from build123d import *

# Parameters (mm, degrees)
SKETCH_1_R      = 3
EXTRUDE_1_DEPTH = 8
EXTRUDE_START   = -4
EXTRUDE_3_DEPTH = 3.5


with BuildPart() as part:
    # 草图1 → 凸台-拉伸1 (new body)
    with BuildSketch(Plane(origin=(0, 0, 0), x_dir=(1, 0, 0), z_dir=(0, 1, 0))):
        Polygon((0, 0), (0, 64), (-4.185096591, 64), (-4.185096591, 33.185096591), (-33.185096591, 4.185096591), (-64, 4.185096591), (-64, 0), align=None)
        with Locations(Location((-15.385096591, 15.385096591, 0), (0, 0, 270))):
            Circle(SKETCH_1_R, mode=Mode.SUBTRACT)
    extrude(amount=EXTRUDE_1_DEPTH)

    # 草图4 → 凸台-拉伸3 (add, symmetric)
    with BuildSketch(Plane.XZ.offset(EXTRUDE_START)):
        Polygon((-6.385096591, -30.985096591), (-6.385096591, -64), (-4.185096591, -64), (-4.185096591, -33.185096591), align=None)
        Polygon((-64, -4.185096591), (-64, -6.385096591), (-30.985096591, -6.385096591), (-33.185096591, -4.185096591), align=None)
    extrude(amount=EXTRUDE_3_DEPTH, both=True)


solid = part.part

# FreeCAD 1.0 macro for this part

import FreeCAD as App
import Part
import Sketcher
Q = App.Units.Quantity


def add_polygon(sketch, points):
    """Adds a closed chain of lines whose ends are joined by coincident constraints."""
    first, n = sketch.GeometryCount, len(points)
    for a, b in zip(points, points[1:] + points[:1]):
        sketch.addGeometry(Part.LineSegment(App.Vector(*a, 0), App.Vector(*b, 0)), False)
    for i in range(n):
        sketch.addConstraint(Sketcher.Constraint("Coincident", first + i, 2, first + (i + 1) % n, 1))

doc = App.newDocument("Part")
body = doc.addObject("PartDesign::Body", "Body")

# Sketch on XZ plane
sketch1 = body.newObject("Sketcher::SketchObject", "Sketch")
sketch1.AttachmentSupport = (doc.getObject("XZ_Plane"), [""])
sketch1.MapMode = "FlatFace"
add_polygon(sketch1, [(0, 0), (0, -64), (-4.2, -64), (-4.2, -33.2), (-33.2, -4.2), (-64, -4.2), (-64, 0)])  # lines 0-6
sketch1.addGeometry(Part.Circle(App.Vector(-15.4, -15.4, 0), App.Vector(0, 0, 1), 3), False)  # 7
sketch1.addConstraint([
    Sketcher.Constraint("Vertical", 0),
    Sketcher.Constraint("Horizontal", 1),
    Sketcher.Constraint("Vertical", 2),
    Sketcher.Constraint("Horizontal", 4),
    Sketcher.Constraint("Vertical", 5),
    Sketcher.Constraint("Horizontal", 6),
    Sketcher.Constraint("Coincident", 6, 2, -1, 1),
    Sketcher.Constraint("Equal", 6, 0),
    Sketcher.Constraint("Equal", 4, 2),
    Sketcher.Constraint("Equal", 1, 5),
    Sketcher.Constraint("Diameter", 7, Q("6 mm")),
    Sketcher.Constraint("DistanceX", 6, 1, 6, 2, Q("64 mm")),
    Sketcher.Constraint("DistanceX", 3, 2, 2, 2, Q("29 mm")),
    Sketcher.Constraint("DistanceX", 7, 3, 1, 2, Q("11.2 mm")),
    Sketcher.Constraint("DistanceY", 2, 2, 7, 3, Q("17.8 mm")),
    Sketcher.Constraint("DistanceX", 1, 2, 1, 1, Q("4.185097 mm")),
])
pad1 = body.newObject("PartDesign::Pad", "Pad")
pad1.Profile = sketch1
pad1.Length = 8
pad1.Reversed = True

# Sketch on XZ plane
sketch2 = body.newObject("Sketcher::SketchObject", "Sketch001")
sketch2.AttachmentSupport = (doc.getObject("XZ_Plane"), [""])
sketch2.MapMode = "FlatFace"
sketch2.AttachmentOffset = App.Placement(App.Vector(0, 0, -4), App.Rotation())
add_polygon(sketch2, [(-6.4, -31), (-6.4, -64), (-4.2, -64), (-4.2, -33.2)])  # lines 0-3
add_polygon(sketch2, [(-64, -4.2), (-64, -6.4), (-31, -6.4), (-33.2, -4.2)])  # lines 4-7
sketch2.addConstraint([
    Sketcher.Constraint("Vertical", 0),
    Sketcher.Constraint("Horizontal", 1),
    Sketcher.Constraint("Vertical", 2),
    Sketcher.Constraint("Vertical", 4),
    Sketcher.Constraint("Horizontal", 5),
    Sketcher.Constraint("Horizontal", 7),
    Sketcher.Constraint("Parallel", 3, 6),
    Sketcher.Constraint("Equal", 5, 0),
    Sketcher.Constraint("Equal", 7, 2),
    Sketcher.Constraint("Equal", 1, 4),
    Sketcher.Constraint("DistanceX", 1, 1, 1, 2, Q("2.2 mm")),
    Sketcher.Constraint("DistanceY", 0, 2, -1, 1, Q("64 mm")),
    Sketcher.Constraint("DistanceX", 4, 2, -1, 1, Q("64 mm")),
    Sketcher.Constraint("DistanceX", 6, 2, 2, 2, Q("29 mm")),
    Sketcher.Constraint("DistanceY", 2, 2, 6, 2, Q("29 mm")),
    Sketcher.Constraint("DistanceX", 5, 1, 5, 2, Q("33.014903 mm")),
])
pad2 = body.newObject("PartDesign::Pad", "Pad001")
pad2.Profile = sketch2
pad2.Length = 7
pad2.Midplane = True

doc.recompute()
